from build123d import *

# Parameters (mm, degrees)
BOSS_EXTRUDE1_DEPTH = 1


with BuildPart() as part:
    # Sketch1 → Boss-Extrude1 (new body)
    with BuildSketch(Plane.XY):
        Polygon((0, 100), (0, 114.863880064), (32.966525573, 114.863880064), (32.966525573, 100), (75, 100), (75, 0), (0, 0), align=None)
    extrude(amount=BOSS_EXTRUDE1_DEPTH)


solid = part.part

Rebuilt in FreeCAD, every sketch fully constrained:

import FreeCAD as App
import Part
import Sketcher

V = App.Vector


def add_polygon(sketch, points):
    """Adds a closed chain of lines whose ends are joined by coincident constraints."""
    first, n = sketch.GeometryCount, len(points)
    for a, b in zip(points, points[1:] + points[:1]):
        sketch.addGeometry(Part.LineSegment(App.Vector(*a, 0), App.Vector(*b, 0)), False)
    for i in range(n):
        sketch.addConstraint(Sketcher.Constraint("Coincident", first + i, 2, first + (i + 1) % n, 1))

doc = App.newDocument("Part")
body = doc.addObject("PartDesign::Body", "Body")

sketch1 = body.newObject("Sketcher::SketchObject", "Sketch")
sketch1.AttachmentSupport = (doc.getObject("XY_Plane"), [""])
sketch1.MapMode = "FlatFace"
add_polygon(sketch1, [(0, 115), (0, 0), (75, 0), (75, 100), (33, 100), (33, 115)])
sketch1.addConstraint([
    Sketcher.Constraint("Vertical", 0),
    Sketcher.Constraint("Horizontal", 1),
    Sketcher.Constraint("Vertical", 2),
    Sketcher.Constraint("Horizontal", 3),
    Sketcher.Constraint("Vertical", 4),
    Sketcher.Constraint("Horizontal", 5),
    Sketcher.Constraint("Coincident", 0, 2, -1, 1),
    Sketcher.Constraint("DistanceX", 1, 1, 1, 2, 75.0),
    Sketcher.Constraint("DistanceY", 2, 1, 2, 2, 100.0),
    Sketcher.Constraint("DistanceY", 0, 2, 0, 1, 114.86388),
    Sketcher.Constraint("DistanceX", 3, 2, 3, 1, 42.033474),
])
pad1 = body.newObject("PartDesign::Pad", "Pad")
pad1.Profile = sketch1
pad1.Length = 1

doc.recompute()
